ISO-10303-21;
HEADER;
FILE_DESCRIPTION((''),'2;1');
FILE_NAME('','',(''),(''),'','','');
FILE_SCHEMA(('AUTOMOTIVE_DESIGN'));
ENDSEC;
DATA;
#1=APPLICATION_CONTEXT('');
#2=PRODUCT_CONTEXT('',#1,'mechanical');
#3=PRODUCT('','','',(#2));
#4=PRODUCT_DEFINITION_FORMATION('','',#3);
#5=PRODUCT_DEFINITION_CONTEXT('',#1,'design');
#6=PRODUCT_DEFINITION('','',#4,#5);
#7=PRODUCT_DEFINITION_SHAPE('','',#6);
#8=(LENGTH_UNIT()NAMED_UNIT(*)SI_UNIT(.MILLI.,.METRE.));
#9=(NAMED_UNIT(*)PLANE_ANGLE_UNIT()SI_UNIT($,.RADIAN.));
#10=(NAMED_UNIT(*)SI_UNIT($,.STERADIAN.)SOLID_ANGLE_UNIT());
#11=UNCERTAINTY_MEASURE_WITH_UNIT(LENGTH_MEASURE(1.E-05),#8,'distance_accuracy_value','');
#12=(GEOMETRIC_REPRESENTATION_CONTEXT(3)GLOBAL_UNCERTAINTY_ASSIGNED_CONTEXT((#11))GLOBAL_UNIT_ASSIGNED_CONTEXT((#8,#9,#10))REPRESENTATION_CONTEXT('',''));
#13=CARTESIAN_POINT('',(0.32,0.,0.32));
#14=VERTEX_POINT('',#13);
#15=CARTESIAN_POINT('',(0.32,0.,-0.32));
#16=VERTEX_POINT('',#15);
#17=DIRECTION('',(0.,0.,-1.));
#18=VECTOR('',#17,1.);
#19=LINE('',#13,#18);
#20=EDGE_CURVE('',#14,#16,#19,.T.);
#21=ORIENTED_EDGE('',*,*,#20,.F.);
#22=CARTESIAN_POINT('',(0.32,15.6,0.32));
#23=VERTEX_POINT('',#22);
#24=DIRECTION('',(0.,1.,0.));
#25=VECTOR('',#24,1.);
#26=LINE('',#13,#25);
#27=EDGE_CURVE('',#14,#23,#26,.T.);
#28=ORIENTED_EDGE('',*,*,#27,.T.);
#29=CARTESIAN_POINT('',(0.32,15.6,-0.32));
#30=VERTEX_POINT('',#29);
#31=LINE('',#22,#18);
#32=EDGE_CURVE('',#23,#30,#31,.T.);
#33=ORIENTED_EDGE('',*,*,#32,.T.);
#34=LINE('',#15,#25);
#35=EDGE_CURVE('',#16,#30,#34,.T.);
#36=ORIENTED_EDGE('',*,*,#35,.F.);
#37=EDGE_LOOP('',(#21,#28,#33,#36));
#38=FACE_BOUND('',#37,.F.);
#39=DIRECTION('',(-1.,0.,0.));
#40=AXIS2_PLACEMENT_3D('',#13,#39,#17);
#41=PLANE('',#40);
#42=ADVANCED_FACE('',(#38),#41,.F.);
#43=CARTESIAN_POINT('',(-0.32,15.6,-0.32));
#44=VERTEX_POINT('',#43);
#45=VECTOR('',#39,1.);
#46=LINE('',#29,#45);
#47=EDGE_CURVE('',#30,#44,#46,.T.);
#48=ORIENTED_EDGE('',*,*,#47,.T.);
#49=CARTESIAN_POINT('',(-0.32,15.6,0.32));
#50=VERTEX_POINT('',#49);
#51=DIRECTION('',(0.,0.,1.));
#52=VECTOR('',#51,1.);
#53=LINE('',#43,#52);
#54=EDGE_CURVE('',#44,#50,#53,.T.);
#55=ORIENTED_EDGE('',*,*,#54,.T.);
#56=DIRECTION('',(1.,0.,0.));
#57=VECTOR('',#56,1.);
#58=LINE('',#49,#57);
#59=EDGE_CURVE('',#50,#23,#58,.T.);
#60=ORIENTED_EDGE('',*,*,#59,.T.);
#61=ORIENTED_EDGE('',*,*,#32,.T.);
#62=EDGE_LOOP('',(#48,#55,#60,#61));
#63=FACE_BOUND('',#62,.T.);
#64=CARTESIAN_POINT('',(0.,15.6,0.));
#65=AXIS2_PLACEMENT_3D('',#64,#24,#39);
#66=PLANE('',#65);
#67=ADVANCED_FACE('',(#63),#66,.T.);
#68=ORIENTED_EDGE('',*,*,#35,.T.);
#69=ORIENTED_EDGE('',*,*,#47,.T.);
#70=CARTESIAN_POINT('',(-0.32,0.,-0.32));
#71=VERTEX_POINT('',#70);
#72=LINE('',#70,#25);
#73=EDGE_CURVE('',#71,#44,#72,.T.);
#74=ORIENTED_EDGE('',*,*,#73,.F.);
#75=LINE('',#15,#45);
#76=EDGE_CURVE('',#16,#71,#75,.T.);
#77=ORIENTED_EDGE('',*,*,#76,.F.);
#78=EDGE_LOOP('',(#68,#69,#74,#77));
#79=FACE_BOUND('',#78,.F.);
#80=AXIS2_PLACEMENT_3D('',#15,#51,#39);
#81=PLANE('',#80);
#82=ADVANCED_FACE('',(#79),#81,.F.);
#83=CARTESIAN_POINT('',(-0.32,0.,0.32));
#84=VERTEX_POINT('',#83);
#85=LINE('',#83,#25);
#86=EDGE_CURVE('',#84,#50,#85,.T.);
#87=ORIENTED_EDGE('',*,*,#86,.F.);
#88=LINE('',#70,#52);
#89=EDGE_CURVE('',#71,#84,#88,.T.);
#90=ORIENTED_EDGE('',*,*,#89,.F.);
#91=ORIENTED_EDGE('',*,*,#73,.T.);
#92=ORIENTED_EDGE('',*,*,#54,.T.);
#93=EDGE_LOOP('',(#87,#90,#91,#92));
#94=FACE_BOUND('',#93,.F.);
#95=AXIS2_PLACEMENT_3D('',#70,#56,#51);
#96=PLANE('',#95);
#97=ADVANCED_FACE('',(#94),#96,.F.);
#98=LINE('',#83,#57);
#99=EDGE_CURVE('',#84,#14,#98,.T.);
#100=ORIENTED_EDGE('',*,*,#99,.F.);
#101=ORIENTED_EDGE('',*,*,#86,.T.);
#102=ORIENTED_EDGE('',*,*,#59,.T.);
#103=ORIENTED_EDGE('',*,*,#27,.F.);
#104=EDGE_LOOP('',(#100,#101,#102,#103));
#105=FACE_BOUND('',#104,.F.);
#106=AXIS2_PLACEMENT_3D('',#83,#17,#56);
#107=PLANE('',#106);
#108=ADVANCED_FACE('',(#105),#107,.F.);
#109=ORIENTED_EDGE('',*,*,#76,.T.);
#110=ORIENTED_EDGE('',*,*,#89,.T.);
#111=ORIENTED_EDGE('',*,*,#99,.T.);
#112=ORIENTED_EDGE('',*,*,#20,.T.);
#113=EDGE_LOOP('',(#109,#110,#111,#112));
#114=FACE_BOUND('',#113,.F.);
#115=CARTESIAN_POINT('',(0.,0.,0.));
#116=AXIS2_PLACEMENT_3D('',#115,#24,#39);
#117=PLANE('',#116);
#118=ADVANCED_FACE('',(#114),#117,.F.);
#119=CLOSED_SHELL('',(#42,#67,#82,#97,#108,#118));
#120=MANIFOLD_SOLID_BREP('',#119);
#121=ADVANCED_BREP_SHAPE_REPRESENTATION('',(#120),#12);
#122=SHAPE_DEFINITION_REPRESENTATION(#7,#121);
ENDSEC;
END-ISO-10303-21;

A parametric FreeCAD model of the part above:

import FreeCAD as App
import Part
import Sketcher
from FreeCAD import Vector
Q = App.Units.Quantity

doc = App.newDocument("Part")
body = doc.addObject("PartDesign::Body", "Body")

sketch1 = doc.addObject("Sketcher::SketchObject", "Sketch")
body.addObject(sketch1)
sketch1.AttachmentSupport = (doc.XZ_Plane, [""])
sketch1.MapMode = "FlatFace"
sketch1.addGeometry(Part.LineSegment(Vector(-0.3, -0.3, 0), Vector(-0.3, 0.3, 0)), False)
sketch1.addGeometry(Part.LineSegment(Vector(-0.3, 0.3, 0), Vector(0.3, 0.3, 0)), False)
sketch1.addGeometry(Part.LineSegment(Vector(0.3, 0.3, 0), Vector(0.3, -0.3, 0)), False)
sketch1.addGeometry(Part.LineSegment(Vector(0.3, -0.3, 0), Vector(-0.3, -0.3, 0)), False)
sketch1.addConstraint(Sketcher.Constraint("Coincident", 0, 2, 1, 1))
sketch1.addConstraint(Sketcher.Constraint("Coincident", 1, 2, 2, 1))
sketch1.addConstraint(Sketcher.Constraint("Coincident", 2, 2, 3, 1))
sketch1.addConstraint(Sketcher.Constraint("Coincident", 3, 2, 0, 1))
sketch1.addConstraint(Sketcher.Constraint("Vertical", 0))
sketch1.addConstraint(Sketcher.Constraint("Horizontal", 1))
sketch1.addConstraint(Sketcher.Constraint("Vertical", 2))
sketch1.addConstraint(Sketcher.Constraint("Horizontal", 3))
sketch1.addConstraint(Sketcher.Constraint("Symmetric", 0, 2, 2, 2, -1, 1))
sketch1.addConstraint(Sketcher.Constraint("Equal", 3, 0))
sketch1.addConstraint(Sketcher.Constraint("DistanceX", 1, 1, 1, 2, Q("0.64 mm")))
pad1 = doc.addObject("PartDesign::Pad", "Pad")
body.addObject(pad1)
pad1.Profile = sketch1
pad1.Length = 15.6
pad1.Reversed = True

doc.recompute()
